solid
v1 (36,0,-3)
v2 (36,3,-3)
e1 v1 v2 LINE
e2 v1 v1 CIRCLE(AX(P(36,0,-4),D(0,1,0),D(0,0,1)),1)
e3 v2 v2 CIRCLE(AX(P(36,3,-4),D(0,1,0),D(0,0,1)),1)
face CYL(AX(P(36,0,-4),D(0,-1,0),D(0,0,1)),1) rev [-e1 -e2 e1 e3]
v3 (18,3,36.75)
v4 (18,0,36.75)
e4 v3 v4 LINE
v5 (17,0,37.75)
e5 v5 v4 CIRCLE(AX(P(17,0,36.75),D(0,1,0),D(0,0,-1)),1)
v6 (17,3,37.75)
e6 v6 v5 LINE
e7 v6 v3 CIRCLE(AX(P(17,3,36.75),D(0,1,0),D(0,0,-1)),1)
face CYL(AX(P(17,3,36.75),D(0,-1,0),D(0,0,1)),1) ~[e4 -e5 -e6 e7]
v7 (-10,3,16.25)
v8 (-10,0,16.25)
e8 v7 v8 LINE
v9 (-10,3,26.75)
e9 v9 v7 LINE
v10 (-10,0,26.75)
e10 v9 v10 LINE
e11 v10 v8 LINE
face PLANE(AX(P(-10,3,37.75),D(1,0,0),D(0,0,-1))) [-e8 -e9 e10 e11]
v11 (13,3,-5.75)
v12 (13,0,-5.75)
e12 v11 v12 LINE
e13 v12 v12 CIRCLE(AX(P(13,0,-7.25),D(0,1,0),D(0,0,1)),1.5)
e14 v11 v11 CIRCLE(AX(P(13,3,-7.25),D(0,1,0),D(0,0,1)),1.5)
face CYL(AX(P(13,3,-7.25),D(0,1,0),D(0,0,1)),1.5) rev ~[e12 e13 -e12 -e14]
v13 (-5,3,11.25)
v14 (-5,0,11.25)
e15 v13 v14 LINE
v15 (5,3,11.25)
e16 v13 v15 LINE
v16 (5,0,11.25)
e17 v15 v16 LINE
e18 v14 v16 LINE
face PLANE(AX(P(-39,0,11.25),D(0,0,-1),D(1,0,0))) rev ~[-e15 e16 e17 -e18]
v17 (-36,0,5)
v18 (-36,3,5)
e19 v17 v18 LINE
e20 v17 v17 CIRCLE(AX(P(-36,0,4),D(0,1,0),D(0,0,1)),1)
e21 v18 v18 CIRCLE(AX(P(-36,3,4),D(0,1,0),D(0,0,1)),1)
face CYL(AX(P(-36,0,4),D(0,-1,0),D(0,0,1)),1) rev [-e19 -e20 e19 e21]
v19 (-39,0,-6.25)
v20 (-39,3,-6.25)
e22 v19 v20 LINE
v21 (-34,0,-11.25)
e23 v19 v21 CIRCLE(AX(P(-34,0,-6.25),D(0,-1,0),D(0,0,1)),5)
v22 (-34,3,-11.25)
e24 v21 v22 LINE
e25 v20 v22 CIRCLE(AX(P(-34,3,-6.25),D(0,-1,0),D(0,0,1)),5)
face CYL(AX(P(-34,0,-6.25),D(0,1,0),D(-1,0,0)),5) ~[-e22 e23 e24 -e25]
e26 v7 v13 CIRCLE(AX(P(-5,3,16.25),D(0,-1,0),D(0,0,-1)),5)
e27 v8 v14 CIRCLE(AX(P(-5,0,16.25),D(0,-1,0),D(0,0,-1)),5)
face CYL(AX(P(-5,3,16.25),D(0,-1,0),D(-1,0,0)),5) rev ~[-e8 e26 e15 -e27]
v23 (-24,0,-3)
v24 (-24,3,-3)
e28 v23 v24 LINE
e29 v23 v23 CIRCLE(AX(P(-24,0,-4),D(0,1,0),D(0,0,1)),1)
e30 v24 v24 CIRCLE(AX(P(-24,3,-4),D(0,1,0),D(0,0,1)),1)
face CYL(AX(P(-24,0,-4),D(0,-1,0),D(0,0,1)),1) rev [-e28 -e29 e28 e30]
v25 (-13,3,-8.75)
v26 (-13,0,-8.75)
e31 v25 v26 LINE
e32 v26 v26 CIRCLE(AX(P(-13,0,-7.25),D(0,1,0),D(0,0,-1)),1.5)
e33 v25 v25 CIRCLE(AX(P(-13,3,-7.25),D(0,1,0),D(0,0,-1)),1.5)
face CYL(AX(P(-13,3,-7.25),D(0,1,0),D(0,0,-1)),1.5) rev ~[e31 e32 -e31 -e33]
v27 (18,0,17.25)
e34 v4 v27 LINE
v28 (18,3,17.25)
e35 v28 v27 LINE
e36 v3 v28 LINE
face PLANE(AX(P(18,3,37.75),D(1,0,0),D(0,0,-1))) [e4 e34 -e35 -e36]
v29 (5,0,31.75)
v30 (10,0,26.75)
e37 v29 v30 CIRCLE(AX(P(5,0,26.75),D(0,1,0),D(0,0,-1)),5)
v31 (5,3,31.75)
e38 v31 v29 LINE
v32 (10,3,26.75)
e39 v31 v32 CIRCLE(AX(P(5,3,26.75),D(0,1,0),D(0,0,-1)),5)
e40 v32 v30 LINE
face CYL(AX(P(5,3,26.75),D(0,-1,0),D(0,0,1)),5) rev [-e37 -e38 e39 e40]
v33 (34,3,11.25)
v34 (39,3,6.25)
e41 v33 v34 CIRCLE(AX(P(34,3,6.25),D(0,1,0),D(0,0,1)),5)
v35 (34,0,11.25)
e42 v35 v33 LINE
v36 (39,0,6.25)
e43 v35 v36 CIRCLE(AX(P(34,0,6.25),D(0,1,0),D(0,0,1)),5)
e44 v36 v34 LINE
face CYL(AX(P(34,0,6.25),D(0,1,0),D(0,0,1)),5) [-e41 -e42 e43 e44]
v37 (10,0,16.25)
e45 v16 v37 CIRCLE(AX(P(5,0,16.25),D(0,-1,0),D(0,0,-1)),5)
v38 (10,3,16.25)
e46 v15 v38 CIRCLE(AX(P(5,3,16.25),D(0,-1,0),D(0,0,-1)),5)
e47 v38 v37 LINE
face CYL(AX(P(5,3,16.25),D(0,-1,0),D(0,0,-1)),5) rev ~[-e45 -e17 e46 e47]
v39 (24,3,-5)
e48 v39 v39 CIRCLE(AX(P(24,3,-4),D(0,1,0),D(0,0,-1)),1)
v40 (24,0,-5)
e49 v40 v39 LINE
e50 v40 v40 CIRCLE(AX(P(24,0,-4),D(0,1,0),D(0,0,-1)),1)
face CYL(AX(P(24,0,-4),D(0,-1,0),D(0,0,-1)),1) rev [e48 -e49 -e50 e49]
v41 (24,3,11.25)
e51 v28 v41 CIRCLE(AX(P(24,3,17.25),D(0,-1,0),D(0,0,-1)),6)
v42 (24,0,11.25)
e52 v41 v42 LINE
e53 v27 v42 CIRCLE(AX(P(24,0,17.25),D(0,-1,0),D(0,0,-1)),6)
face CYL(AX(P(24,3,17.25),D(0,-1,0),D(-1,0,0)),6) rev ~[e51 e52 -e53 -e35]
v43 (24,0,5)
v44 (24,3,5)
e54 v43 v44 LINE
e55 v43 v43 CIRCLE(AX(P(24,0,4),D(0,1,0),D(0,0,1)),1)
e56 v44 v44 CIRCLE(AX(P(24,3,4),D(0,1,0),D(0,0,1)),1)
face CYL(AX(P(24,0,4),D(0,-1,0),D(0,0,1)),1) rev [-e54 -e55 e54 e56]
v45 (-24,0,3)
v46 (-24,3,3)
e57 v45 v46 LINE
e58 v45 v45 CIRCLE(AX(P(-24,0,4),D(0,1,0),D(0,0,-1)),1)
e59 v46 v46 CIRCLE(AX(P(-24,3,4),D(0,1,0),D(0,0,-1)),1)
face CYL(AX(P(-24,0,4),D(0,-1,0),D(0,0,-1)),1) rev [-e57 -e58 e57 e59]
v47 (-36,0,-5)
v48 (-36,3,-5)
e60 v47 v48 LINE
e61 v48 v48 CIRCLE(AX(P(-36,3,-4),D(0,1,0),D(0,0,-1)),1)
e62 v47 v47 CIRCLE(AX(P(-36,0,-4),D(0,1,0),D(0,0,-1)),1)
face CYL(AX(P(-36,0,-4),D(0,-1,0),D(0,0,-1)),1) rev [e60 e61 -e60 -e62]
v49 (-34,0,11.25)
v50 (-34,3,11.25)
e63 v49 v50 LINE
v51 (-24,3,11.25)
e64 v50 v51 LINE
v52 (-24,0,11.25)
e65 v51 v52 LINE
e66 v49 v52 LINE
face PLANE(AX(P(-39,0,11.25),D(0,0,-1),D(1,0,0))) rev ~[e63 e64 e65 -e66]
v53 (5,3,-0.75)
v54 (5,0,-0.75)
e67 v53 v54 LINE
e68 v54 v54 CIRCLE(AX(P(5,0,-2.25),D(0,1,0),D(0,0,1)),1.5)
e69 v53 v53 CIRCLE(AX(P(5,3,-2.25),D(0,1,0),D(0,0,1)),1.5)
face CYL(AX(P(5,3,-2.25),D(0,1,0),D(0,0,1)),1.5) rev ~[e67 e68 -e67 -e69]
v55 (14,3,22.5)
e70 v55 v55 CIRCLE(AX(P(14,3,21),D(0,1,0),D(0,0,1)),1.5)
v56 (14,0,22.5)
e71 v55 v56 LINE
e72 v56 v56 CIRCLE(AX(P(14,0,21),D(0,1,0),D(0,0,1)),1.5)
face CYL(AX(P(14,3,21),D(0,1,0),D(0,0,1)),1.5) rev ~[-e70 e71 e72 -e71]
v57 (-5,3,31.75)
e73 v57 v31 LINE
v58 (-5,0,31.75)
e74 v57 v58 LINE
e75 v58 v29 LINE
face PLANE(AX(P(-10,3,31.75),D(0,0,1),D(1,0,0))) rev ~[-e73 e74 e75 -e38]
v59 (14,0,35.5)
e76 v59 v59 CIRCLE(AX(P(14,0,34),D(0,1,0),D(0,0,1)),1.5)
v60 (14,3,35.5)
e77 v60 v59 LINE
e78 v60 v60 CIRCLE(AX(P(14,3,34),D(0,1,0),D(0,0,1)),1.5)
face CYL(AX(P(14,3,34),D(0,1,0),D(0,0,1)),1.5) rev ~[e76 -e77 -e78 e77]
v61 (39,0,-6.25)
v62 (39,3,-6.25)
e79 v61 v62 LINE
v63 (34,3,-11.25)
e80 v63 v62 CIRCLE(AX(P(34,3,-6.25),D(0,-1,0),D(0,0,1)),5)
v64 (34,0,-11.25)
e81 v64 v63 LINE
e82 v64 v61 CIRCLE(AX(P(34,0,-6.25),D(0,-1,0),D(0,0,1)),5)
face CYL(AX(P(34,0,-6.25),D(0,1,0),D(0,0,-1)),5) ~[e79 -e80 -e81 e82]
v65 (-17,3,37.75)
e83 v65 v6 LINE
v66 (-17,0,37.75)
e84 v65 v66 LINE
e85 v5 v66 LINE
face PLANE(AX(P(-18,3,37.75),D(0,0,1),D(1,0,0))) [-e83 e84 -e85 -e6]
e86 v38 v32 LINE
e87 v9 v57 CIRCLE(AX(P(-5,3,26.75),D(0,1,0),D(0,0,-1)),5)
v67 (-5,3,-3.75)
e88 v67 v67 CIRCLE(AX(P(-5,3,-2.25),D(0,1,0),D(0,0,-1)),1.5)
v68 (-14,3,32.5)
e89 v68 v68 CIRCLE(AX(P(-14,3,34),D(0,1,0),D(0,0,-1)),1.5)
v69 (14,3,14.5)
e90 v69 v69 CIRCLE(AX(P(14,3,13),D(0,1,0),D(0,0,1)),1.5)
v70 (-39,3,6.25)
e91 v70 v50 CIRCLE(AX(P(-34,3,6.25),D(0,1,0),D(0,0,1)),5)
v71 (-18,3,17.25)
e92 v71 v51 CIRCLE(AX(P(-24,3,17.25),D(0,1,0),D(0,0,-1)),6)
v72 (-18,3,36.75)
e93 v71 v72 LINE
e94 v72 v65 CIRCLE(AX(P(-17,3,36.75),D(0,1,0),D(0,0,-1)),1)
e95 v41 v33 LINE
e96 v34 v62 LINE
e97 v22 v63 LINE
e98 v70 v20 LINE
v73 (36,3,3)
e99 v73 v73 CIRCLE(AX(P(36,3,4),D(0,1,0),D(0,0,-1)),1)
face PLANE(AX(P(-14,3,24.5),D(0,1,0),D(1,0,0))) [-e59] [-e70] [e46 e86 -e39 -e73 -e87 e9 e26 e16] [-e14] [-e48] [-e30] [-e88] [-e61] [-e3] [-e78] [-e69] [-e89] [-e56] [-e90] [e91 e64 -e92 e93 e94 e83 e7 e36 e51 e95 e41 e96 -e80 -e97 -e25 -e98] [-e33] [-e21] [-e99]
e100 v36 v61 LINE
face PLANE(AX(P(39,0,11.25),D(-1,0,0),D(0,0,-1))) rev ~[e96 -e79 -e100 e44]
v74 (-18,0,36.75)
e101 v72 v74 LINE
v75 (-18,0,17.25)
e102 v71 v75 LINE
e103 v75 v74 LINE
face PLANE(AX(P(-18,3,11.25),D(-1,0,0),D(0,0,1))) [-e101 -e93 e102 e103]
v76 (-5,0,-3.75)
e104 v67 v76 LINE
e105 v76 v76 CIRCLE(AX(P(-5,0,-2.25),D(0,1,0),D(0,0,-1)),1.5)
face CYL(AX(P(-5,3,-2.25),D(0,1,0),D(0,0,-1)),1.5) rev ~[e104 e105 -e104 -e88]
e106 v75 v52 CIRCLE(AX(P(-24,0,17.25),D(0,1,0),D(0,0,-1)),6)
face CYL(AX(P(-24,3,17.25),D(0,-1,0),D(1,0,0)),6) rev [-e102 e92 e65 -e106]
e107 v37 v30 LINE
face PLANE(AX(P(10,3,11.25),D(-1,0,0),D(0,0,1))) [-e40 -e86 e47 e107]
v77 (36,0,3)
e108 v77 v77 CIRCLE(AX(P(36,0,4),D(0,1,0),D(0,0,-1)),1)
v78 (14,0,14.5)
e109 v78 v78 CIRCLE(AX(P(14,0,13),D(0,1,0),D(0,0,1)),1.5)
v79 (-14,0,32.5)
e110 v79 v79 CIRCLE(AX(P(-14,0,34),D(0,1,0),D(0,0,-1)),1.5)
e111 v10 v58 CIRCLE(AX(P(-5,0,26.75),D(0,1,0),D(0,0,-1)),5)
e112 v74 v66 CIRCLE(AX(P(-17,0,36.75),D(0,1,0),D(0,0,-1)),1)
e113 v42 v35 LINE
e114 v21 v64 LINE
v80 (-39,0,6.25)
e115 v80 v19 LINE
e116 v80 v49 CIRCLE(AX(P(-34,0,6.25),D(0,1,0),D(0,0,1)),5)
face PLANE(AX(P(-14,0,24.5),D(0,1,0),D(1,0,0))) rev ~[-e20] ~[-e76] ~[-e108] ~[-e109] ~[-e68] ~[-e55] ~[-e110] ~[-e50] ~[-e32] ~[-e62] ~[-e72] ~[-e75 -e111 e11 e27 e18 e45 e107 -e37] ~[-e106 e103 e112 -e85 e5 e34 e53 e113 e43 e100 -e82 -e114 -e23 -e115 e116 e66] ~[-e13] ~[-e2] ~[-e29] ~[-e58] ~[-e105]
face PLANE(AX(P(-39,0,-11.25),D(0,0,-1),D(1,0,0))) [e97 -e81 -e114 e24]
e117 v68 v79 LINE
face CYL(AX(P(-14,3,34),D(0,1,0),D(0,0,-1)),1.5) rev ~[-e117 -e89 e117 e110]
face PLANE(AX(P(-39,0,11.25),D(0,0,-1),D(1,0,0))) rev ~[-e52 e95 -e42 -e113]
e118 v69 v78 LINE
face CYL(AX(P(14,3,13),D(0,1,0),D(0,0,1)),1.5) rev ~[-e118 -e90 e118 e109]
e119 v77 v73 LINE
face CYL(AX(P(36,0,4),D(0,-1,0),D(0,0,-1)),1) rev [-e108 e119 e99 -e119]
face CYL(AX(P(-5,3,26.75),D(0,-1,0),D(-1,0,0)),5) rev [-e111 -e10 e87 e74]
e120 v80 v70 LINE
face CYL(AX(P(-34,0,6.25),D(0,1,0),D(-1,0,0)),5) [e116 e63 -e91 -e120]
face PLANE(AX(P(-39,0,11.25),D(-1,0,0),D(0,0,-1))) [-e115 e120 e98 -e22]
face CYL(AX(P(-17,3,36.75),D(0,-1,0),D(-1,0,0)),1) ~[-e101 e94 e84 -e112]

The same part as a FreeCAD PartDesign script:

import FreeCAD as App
import Part
import Sketcher
Q = App.Units.Quantity


def edges_at(feature, points):
    """Names of the edges that pass closest to the given points."""
    edges = feature.Shape.Edges
    near = lambda p: min(range(len(edges)), key=lambda i: edges[i].distToShape(Part.Vertex(*p))[0])
    return sorted({f"Edge{near(p) + 1}" for p in points})

doc = App.newDocument("Part")
body = doc.addObject("PartDesign::Body", "Body")

sketch1 = doc.addObject("Sketcher::SketchObject", "Sketch")
body.addObject(sketch1)
sketch1.AttachmentSupport = (doc.XZ_Plane, [""])
sketch1.MapMode = "FlatFace"
sketch1.addGeometry(Part.LineSegment(App.Vector(-39, -11.2, 0), App.Vector(-39, 11.2, 0)), False)
sketch1.addGeometry(Part.LineSegment(App.Vector(-39, 11.2, 0), App.Vector(39, 11.2, 0)), False)
sketch1.addGeometry(Part.LineSegment(App.Vector(39, 11.2, 0), App.Vector(39, -11.2, 0)), False)
sketch1.addGeometry(Part.LineSegment(App.Vector(39, -11.2, 0), App.Vector(-39, -11.2, 0)), False)
sketch1.addGeometry(Part.Circle(App.Vector(-36, 4, 0), App.Vector(0, 0, 1), 1), False)
sketch1.addGeometry(Part.Circle(App.Vector(-24, 4, 0), App.Vector(0, 0, 1), 1), False)
sketch1.addGeometry(Part.Circle(App.Vector(24, 4, 0), App.Vector(0, 0, 1), 1), False)
sketch1.addGeometry(Part.Circle(App.Vector(36, 4, 0), App.Vector(0, 0, 1), 1), False)
sketch1.addGeometry(Part.Circle(App.Vector(-36, -4, 0), App.Vector(0, 0, 1), 1), False)
sketch1.addGeometry(Part.Circle(App.Vector(-24, -4, 0), App.Vector(0, 0, 1), 1), False)
sketch1.addGeometry(Part.Circle(App.Vector(24, -4, 0), App.Vector(0, 0, 1), 1), False)
sketch1.addGeometry(Part.Circle(App.Vector(36, -4, 0), App.Vector(0, 0, 1), 1), False)
sketch1.addConstraint(Sketcher.Constraint("Coincident", 0, 2, 1, 1))
sketch1.addConstraint(Sketcher.Constraint("Coincident", 1, 2, 2, 1))
sketch1.addConstraint(Sketcher.Constraint("Coincident", 2, 2, 3, 1))
sketch1.addConstraint(Sketcher.Constraint("Coincident", 3, 2, 0, 1))
sketch1.addConstraint(Sketcher.Constraint("Vertical", 0))
sketch1.addConstraint(Sketcher.Constraint("Horizontal", 1))
sketch1.addConstraint(Sketcher.Constraint("Vertical", 2))
sketch1.addConstraint(Sketcher.Constraint("Horizontal", 3))
sketch1.addConstraint(Sketcher.Constraint("Equal", 4, 5))
sketch1.addConstraint(Sketcher.Constraint("Equal", 5, 6))
sketch1.addConstraint(Sketcher.Constraint("Equal", 6, 7))
sketch1.addConstraint(Sketcher.Constraint("Equal", 7, 8))
sketch1.addConstraint(Sketcher.Constraint("Equal", 8, 9))
sketch1.addConstraint(Sketcher.Constraint("Equal", 9, 10))
sketch1.addConstraint(Sketcher.Constraint("Equal", 10, 11))
sketch1.addConstraint(Sketcher.Constraint("Symmetric", 7, 3, 8, 3, -1, 1))
sketch1.addConstraint(Sketcher.Constraint("Symmetric", 6, 3, 9, 3, -1, 1))
sketch1.addConstraint(Sketcher.Constraint("Symmetric", 5, 3, 10, 3, -1, 1))
sketch1.addConstraint(Sketcher.Constraint("Symmetric", 4, 3, 11, 3, -1, 1))
sketch1.addConstraint(Sketcher.Constraint("Symmetric", 0, 2, 2, 2, -1, 1))
sketch1.addConstraint(Sketcher.Constraint("Symmetric", 5, 3, 6, 3, -2))
sketch1.addConstraint(Sketcher.Constraint("Symmetric", 4, 3, 7, 3, -2))
sketch1.addConstraint(Sketcher.Constraint("Horizontal", 4, 3, 5, 3))
sketch1.addConstraint(Sketcher.Constraint("Diameter", 4, Q("2 mm")))
sketch1.addConstraint(Sketcher.Constraint("DistanceX", 1, 1, 1, 2, Q("78 mm")))
sketch1.addConstraint(Sketcher.Constraint("DistanceY", 0, 1, 0, 2, Q("22.5 mm")))
sketch1.addConstraint(Sketcher.Constraint("DistanceX", 4, 3, -1, 1, Q("36 mm")))
sketch1.addConstraint(Sketcher.Constraint("DistanceY", -1, 1, 4, 3, Q("4 mm")))
sketch1.addConstraint(Sketcher.Constraint("DistanceX", 5, 3, -1, 1, Q("24 mm")))
pad1 = doc.addObject("PartDesign::Pad", "Pad")
body.addObject(pad1)
pad1.Profile = sketch1
pad1.Length = 3
pad1.Reversed = True
doc.recompute()

fillet = doc.addObject("PartDesign::Fillet", "Fillet")
body.addObject(fillet)
fillet.Base = (pad1, edges_at(pad1, [
    (39, 1.5, 11.25),
    (-39, 1.5, 11.25),
    (-39, 1.5, -11.25),
    (39, 1.5, -11.25),
]))
fillet.Radius = 5

sketch2 = doc.addObject("Sketcher::SketchObject", "Sketch001")
body.addObject(sketch2)
sketch2.AttachmentSupport = (doc.XZ_Plane, [""])
sketch2.MapMode = "FlatFace"
sketch2.AttachmentOffset = App.Placement(App.Vector(0, 0, -3), App.Rotation())
sketch2.addGeometry(Part.LineSegment(App.Vector(-10, 11.2, 0), App.Vector(-18, 11.2, 0)), False)
sketch2.addGeometry(Part.LineSegment(App.Vector(-18, 11.2, 0), App.Vector(-18, 37.8, 0)), False)
sketch2.addGeometry(Part.LineSegment(App.Vector(-18, 37.8, 0), App.Vector(18, 37.8, 0)), False)
sketch2.addGeometry(Part.LineSegment(App.Vector(18, 37.8, 0), App.Vector(18, 11.2, 0)), False)
sketch2.addGeometry(Part.LineSegment(App.Vector(18, 11.2, 0), App.Vector(10, 11.2, 0)), False)
sketch2.addGeometry(Part.LineSegment(App.Vector(10, 11.2, 0), App.Vector(10, 31.8, 0)), False)
sketch2.addGeometry(Part.LineSegment(App.Vector(10, 31.8, 0), App.Vector(-10, 31.8, 0)), False)
sketch2.addGeometry(Part.LineSegment(App.Vector(-10, 31.8, 0), App.Vector(-10, 11.2, 0)), False)
sketch2.addGeometry(Part.Circle(App.Vector(14, 21, 0), App.Vector(0, 0, 1), 1.5), False)
sketch2.addConstraint(Sketcher.Constraint("Coincident", 0, 2, 1, 1))
sketch2.addConstraint(Sketcher.Constraint("Coincident", 1, 2, 2, 1))
sketch2.addConstraint(Sketcher.Constraint("Coincident", 2, 2, 3, 1))
sketch2.addConstraint(Sketcher.Constraint("Coincident", 3, 2, 4, 1))
sketch2.addConstraint(Sketcher.Constraint("Coincident", 4, 2, 5, 1))
sketch2.addConstraint(Sketcher.Constraint("Coincident", 5, 2, 6, 1))
sketch2.addConstraint(Sketcher.Constraint("Coincident", 6, 2, 7, 1))
sketch2.addConstraint(Sketcher.Constraint("Coincident", 7, 2, 0, 1))
sketch2.addConstraint(Sketcher.Constraint("Horizontal", 0))
sketch2.addConstraint(Sketcher.Constraint("Vertical", 1))
sketch2.addConstraint(Sketcher.Constraint("Horizontal", 2))
sketch2.addConstraint(Sketcher.Constraint("Vertical", 3))
sketch2.addConstraint(Sketcher.Constraint("Horizontal", 4))
sketch2.addConstraint(Sketcher.Constraint("Vertical", 5))
sketch2.addConstraint(Sketcher.Constraint("Horizontal", 6))
sketch2.addConstraint(Sketcher.Constraint("Vertical", 7))
sketch2.addConstraint(Sketcher.Constraint("Symmetric", 0, 2, 3, 2, -2))
sketch2.addConstraint(Sketcher.Constraint("Equal", 0, 4))
sketch2.addConstraint(Sketcher.Constraint("Diameter", 8, Q("3 mm")))
sketch2.addConstraint(Sketcher.Constraint("DistanceX", 0, 2, 0, 1, Q("8 mm")))
sketch2.addConstraint(Sketcher.Constraint("DistanceX", 2, 1, 2, 2, Q("36 mm")))
sketch2.addConstraint(Sketcher.Constraint("DistanceY", 1, 1, 1, 2, Q("26.5 mm")))
sketch2.addConstraint(Sketcher.Constraint("DistanceY", 5, 1, 5, 2, Q("20.5 mm")))
sketch2.addConstraint(Sketcher.Constraint("DistanceX", -1, 1, 8, 3, Q("14 mm")))
sketch2.addConstraint(Sketcher.Constraint("DistanceY", -1, 1, 8, 3, Q("21 mm")))
sketch2.addConstraint(Sketcher.Constraint("DistanceY", -1, 1, 0, 2, Q("11.25 mm")))
pad2 = doc.addObject("PartDesign::Pad", "Pad001")
body.addObject(pad2)
pad2.Profile = sketch2
pad2.Length = 3

sketch3 = doc.addObject("Sketcher::SketchObject", "Sketch002")
body.addObject(sketch3)
sketch3.AttachmentSupport = (doc.XZ_Plane, [""])
sketch3.MapMode = "FlatFace"
sketch3.AttachmentOffset = App.Placement(App.Vector(0, 0, -3), App.Rotation())
sketch3.addGeometry(Part.Circle(App.Vector(13, -7.2, 0), App.Vector(0, 0, 1), 1.5), False)
sketch3.addGeometry(Part.Circle(App.Vector(-13, -7.2, 0), App.Vector(0, 0, 1), 1.5), False)
sketch3.addGeometry(Part.Circle(App.Vector(5, -2.2, 0), App.Vector(0, 0, 1), 1.5), False)
sketch3.addGeometry(Part.Circle(App.Vector(-5, -2.2, 0), App.Vector(0, 0, 1), 1.5), False)
sketch3.addConstraint(Sketcher.Constraint("Equal", 0, 1))
sketch3.addConstraint(Sketcher.Constraint("Equal", 1, 2))
sketch3.addConstraint(Sketcher.Constraint("Equal", 2, 3))
sketch3.addConstraint(Sketcher.Constraint("Symmetric", 0, 3, 1, 3, -2))
sketch3.addConstraint(Sketcher.Constraint("Symmetric", 2, 3, 3, 3, -2))
sketch3.addConstraint(Sketcher.Constraint("Diameter", 0, Q("3 mm")))
sketch3.addConstraint(Sketcher.Constraint("DistanceX", -1, 1, 0, 3, Q("13 mm")))
sketch3.addConstraint(Sketcher.Constraint("DistanceX", -1, 1, 2, 3, Q("5 mm")))
sketch3.addConstraint(Sketcher.Constraint("DistanceY", 0, 3, 2, 3, Q("5 mm")))
sketch3.addConstraint(Sketcher.Constraint("DistanceY", 0, 3, -1, 1, Q("7.25 mm")))
pocket1 = doc.addObject("PartDesign::Pocket", "Pocket")
body.addObject(pocket1)
pocket1.Profile = sketch3
pocket1.Length = 29.5
pocket1.Reversed = True

sketch4 = doc.addObject("Sketcher::SketchObject", "Sketch003")
body.addObject(sketch4)
sketch4.AttachmentSupport = (doc.XZ_Plane, [""])
sketch4.MapMode = "FlatFace"
sketch4.AttachmentOffset = App.Placement(App.Vector(0, 0, -3), App.Rotation())
sketch4.addGeometry(Part.Circle(App.Vector(14, 13, 0), App.Vector(0, 0, 1), 1.5), False)
sketch4.addConstraint(Sketcher.Constraint("Diameter", 0, Q("3 mm")))
sketch4.addConstraint(Sketcher.Constraint("DistanceX", -1, 1, 0, 3, Q("14 mm")))
sketch4.addConstraint(Sketcher.Constraint("DistanceY", -1, 1, 0, 3, Q("13 mm")))
pocket2 = doc.addObject("PartDesign::Pocket", "Pocket001")
body.addObject(pocket2)
pocket2.Profile = sketch4
pocket2.Length = 39
pocket2.Reversed = True
doc.recompute()

fillet2 = doc.addObject("PartDesign::Fillet", "Fillet001")
body.addObject(fillet2)
fillet2.Base = (pocket2, edges_at(pocket2, [(-18, 1.5, 11.25), (18, 1.5, 11.25)]))
fillet2.Radius = 6

sketch5 = doc.addObject("Sketcher::SketchObject", "Sketch004")
body.addObject(sketch5)
sketch5.AttachmentSupport = (doc.XZ_Plane, [""])
sketch5.MapMode = "FlatFace"
sketch5.AttachmentOffset = App.Placement(App.Vector(0, 0, -3), App.Rotation())
sketch5.addGeometry(Part.Circle(App.Vector(14, 34, 0), App.Vector(0, 0, 1), 1.5), False)
sketch5.addGeometry(Part.Circle(App.Vector(-14, 34, 0), App.Vector(0, 0, 1), 1.5), False)
sketch5.addConstraint(Sketcher.Constraint("Equal", 0, 1))
sketch5.addConstraint(Sketcher.Constraint("Symmetric", 0, 3, 1, 3, -2))
sketch5.addConstraint(Sketcher.Constraint("Diameter", 0, Q("3 mm")))
sketch5.addConstraint(Sketcher.Constraint("DistanceX", -1, 1, 0, 3, Q("14 mm")))
sketch5.addConstraint(Sketcher.Constraint("DistanceY", -1, 1, 0, 3, Q("34 mm")))
pocket3 = doc.addObject("PartDesign::Pocket", "Pocket002")
body.addObject(pocket3)
pocket3.Profile = sketch5
pocket3.Length = 10
pocket3.Reversed = True
doc.recompute()

fillet3 = doc.addObject("PartDesign::Fillet", "Fillet002")
body.addObject(fillet3)
fillet3.Base = (pocket3, edges_at(pocket3, [(18, 1.5, 37.75), (-18, 1.5, 37.75)]))
fillet3.Radius = 1
doc.recompute()

fillet4 = doc.addObject("PartDesign::Fillet", "Fillet003")
body.addObject(fillet4)
fillet4.Base = (fillet3, edges_at(fillet3, [
    (-10, 1.5, 11.25),
    (-10, 1.5, 31.75),
    (10, 1.5, 31.75),
    (10, 1.5, 11.25),
]))
fillet4.Radius = 5

doc.recompute()
